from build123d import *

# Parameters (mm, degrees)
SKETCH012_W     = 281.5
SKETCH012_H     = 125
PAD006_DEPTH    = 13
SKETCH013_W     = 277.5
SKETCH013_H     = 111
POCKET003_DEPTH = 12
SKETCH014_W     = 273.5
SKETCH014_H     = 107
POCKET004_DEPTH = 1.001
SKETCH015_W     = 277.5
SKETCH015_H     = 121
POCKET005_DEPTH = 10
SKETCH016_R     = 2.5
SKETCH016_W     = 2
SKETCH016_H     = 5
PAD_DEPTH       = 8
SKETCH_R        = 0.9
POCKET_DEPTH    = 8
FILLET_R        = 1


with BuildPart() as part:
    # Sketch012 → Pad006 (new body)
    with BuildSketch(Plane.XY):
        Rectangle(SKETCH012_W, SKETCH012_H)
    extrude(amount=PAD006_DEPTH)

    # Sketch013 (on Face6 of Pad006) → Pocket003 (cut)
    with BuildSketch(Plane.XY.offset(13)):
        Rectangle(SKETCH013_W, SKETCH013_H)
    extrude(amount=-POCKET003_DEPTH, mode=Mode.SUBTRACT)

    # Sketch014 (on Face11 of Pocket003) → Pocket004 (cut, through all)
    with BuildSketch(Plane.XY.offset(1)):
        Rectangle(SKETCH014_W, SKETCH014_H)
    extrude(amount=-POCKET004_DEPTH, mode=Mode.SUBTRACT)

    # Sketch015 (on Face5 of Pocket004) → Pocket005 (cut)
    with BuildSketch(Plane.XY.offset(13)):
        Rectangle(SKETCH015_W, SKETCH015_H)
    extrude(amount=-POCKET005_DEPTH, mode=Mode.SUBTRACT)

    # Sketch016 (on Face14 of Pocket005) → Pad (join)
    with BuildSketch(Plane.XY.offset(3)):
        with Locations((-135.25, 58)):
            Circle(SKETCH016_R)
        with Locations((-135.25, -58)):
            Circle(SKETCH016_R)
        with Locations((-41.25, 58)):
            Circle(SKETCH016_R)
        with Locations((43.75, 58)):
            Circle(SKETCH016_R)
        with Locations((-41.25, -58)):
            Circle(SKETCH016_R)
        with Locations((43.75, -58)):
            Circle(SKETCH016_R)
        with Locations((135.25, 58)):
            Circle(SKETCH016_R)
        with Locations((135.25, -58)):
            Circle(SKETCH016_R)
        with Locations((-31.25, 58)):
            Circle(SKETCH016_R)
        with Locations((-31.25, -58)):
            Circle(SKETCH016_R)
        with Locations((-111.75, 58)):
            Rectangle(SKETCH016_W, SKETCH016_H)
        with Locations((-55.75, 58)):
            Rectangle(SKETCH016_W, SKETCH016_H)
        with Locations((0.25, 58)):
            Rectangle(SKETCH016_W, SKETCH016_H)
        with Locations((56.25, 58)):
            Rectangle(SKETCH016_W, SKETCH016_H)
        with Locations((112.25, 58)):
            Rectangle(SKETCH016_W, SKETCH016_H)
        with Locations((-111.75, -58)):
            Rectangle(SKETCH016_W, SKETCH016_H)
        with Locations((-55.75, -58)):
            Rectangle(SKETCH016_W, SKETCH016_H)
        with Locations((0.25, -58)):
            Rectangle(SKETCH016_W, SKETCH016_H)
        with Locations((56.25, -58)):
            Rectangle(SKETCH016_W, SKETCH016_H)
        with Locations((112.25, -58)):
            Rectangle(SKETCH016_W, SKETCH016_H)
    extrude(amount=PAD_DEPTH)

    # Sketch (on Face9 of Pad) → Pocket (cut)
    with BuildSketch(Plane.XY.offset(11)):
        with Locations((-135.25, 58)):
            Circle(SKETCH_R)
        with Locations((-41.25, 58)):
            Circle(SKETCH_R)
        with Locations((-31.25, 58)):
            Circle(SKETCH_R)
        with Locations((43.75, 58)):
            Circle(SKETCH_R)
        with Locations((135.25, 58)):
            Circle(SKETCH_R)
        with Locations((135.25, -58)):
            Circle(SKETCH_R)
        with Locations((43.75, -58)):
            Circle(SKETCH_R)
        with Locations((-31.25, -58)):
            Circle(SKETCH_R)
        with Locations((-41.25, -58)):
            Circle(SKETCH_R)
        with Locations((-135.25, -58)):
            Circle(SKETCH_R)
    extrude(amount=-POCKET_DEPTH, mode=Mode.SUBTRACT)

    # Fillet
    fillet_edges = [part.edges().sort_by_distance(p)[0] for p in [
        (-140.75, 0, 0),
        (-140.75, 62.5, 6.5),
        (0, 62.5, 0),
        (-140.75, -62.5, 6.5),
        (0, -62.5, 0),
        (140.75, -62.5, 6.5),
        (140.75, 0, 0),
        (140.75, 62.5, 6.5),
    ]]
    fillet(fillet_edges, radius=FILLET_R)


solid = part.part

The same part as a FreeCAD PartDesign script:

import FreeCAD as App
import Part
import Sketcher


def edges_at(feature, points):
    """Names of the edges that pass closest to the given points."""
    edges = feature.Shape.Edges
    near = lambda p: min(range(len(edges)), key=lambda i: edges[i].distToShape(Part.Vertex(*p))[0])
    return sorted({f"Edge{near(p) + 1}" for p in points})


def add_polygon(sketch, points):
    """Adds a closed chain of lines whose ends are joined by coincident constraints."""
    first, n = sketch.GeometryCount, len(points)
    for a, b in zip(points, points[1:] + points[:1]):
        sketch.addGeometry(Part.LineSegment(App.Vector(*a, 0), App.Vector(*b, 0)), False)
    for i in range(n):
        sketch.addConstraint(Sketcher.Constraint("Coincident", first + i, 2, first + (i + 1) % n, 1))

doc = App.newDocument("Part")
body = doc.addObject("PartDesign::Body", "Body")

# Sketch on XY plane
sketch1 = doc.addObject("Sketcher::SketchObject", "Sketch")
body.addObject(sketch1)
sketch1.AttachmentSupport = (doc.XY_Plane, [""])
sketch1.MapMode = "FlatFace"
add_polygon(sketch1, [(-140.75, 62.5), (-140.75, -62.5), (140.75, -62.5), (140.75, 62.5)])  # lines 0-3
sketch1.addConstraint([
    Sketcher.Constraint("Vertical", 0),
    Sketcher.Constraint("Horizontal", 1),
    Sketcher.Constraint("Vertical", 2),
    Sketcher.Constraint("Horizontal", 3),
    Sketcher.Constraint("Symmetric", 0, 2, 2, 2, -1, 1),
    Sketcher.Constraint("DistanceY", 0, 2, 0, 1, 125.0),
    Sketcher.Constraint("DistanceX", 1, 1, 1, 2, 281.5),
])
pad1 = doc.addObject("PartDesign::Pad", "Pad")
body.addObject(pad1)
pad1.Profile = sketch1
pad1.Length = 13

# Sketch on XY plane
sketch2 = doc.addObject("Sketcher::SketchObject", "Sketch001")
body.addObject(sketch2)
sketch2.AttachmentSupport = (doc.XY_Plane, [""])
sketch2.MapMode = "FlatFace"
sketch2.AttachmentOffset = App.Placement(App.Vector(0, 0, 13), App.Rotation())
add_polygon(sketch2, [(-138.75, 55.5), (-138.75, -55.5), (138.75, -55.5), (138.75, 55.5)])  # lines 0-3
sketch2.addConstraint([
    Sketcher.Constraint("Vertical", 0),
    Sketcher.Constraint("Horizontal", 1),
    Sketcher.Constraint("Vertical", 2),
    Sketcher.Constraint("Horizontal", 3),
    Sketcher.Constraint("Symmetric", 0, 2, 2, 2, -1, 1),
    Sketcher.Constraint("DistanceY", 0, 2, 0, 1, 111.0),
    Sketcher.Constraint("DistanceX", 1, 1, 1, 2, 277.5),
])
pocket1 = doc.addObject("PartDesign::Pocket", "Pocket")
body.addObject(pocket1)
pocket1.Profile = sketch2
pocket1.Length = 12

# Sketch on XY plane
sketch3 = doc.addObject("Sketcher::SketchObject", "Sketch002")
body.addObject(sketch3)
sketch3.AttachmentSupport = (doc.XY_Plane, [""])
sketch3.MapMode = "FlatFace"
sketch3.AttachmentOffset = App.Placement(App.Vector(0, 0, 1), App.Rotation())
add_polygon(sketch3, [(-136.75, 53.5), (-136.75, -53.5), (136.75, -53.5), (136.75, 53.5)])  # lines 0-3
sketch3.addConstraint([
    Sketcher.Constraint("Vertical", 0),
    Sketcher.Constraint("Horizontal", 1),
    Sketcher.Constraint("Vertical", 2),
    Sketcher.Constraint("Horizontal", 3),
    Sketcher.Constraint("Symmetric", 0, 2, 2, 2, -1, 1),
    Sketcher.Constraint("DistanceY", 0, 2, 0, 1, 107.0),
    Sketcher.Constraint("DistanceX", 1, 1, 1, 2, 273.5),
])
pocket2 = doc.addObject("PartDesign::Pocket", "Pocket001")
body.addObject(pocket2)
pocket2.Profile = sketch3
pocket2.Type = "ThroughAll"

# Sketch on XY plane
sketch4 = doc.addObject("Sketcher::SketchObject", "Sketch003")
body.addObject(sketch4)
sketch4.AttachmentSupport = (doc.XY_Plane, [""])
sketch4.MapMode = "FlatFace"
sketch4.AttachmentOffset = App.Placement(App.Vector(0, 0, 13), App.Rotation())
add_polygon(sketch4, [(-138.75, 60.5), (-138.75, -60.5), (138.75, -60.5), (138.75, 60.5)])  # lines 0-3
sketch4.addConstraint([
    Sketcher.Constraint("Vertical", 0),
    Sketcher.Constraint("Horizontal", 1),
    Sketcher.Constraint("Vertical", 2),
    Sketcher.Constraint("Horizontal", 3),
    Sketcher.Constraint("Symmetric", 0, 2, 2, 2, -1, 1),
    Sketcher.Constraint("DistanceY", 0, 2, 0, 1, 121.0),
    Sketcher.Constraint("DistanceX", 1, 1, 1, 2, 277.5),
])
pocket3 = doc.addObject("PartDesign::Pocket", "Pocket002")
body.addObject(pocket3)
pocket3.Profile = sketch4
pocket3.Length = 10

# Sketch on XY plane
sketch5 = doc.addObject("Sketcher::SketchObject", "Sketch004")
body.addObject(sketch5)
sketch5.AttachmentSupport = (doc.XY_Plane, [""])
sketch5.MapMode = "FlatFace"
sketch5.AttachmentOffset = App.Placement(App.Vector(0, 0, 3), App.Rotation())
sketch5.addGeometry(Part.Circle(App.Vector(-135.25, 58, 0), App.Vector(0, 0, 1), 2.5), False)  # 0
sketch5.addGeometry(Part.Circle(App.Vector(-135.25, -58, 0), App.Vector(0, 0, 1), 2.5), False)  # 1
sketch5.addGeometry(Part.Circle(App.Vector(-41.25, 58, 0), App.Vector(0, 0, 1), 2.5), False)  # 2
sketch5.addGeometry(Part.Circle(App.Vector(43.75, 58, 0), App.Vector(0, 0, 1), 2.5), False)  # 3
sketch5.addGeometry(Part.Circle(App.Vector(-41.25, -58, 0), App.Vector(0, 0, 1), 2.5), False)  # 4
sketch5.addGeometry(Part.Circle(App.Vector(43.75, -58, 0), App.Vector(0, 0, 1), 2.5), False)  # 5
sketch5.addGeometry(Part.Circle(App.Vector(135.25, 58, 0), App.Vector(0, 0, 1), 2.5), False)  # 6
sketch5.addGeometry(Part.Circle(App.Vector(135.25, -58, 0), App.Vector(0, 0, 1), 2.5), False)  # 7
sketch5.addGeometry(Part.Circle(App.Vector(-31.25, 58, 0), App.Vector(0, 0, 1), 2.5), False)  # 8
sketch5.addGeometry(Part.Circle(App.Vector(-31.25, -58, 0), App.Vector(0, 0, 1), 2.5), False)  # 9
add_polygon(sketch5, [(-112.75, 60.5), (-112.75, 55.5), (-110.75, 55.5), (-110.75, 60.5)])  # lines 10-13
add_polygon(sketch5, [(-56.75, 60.5), (-56.75, 55.5), (-54.75, 55.5), (-54.75, 60.5)])  # lines 14-17
add_polygon(sketch5, [(-0.75, 60.5), (-0.75, 55.5), (1.25, 55.5), (1.25, 60.5)])  # lines 18-21
add_polygon(sketch5, [(55.25, 60.5), (55.25, 55.5), (57.25, 55.5), (57.25, 60.5)])  # lines 22-25
add_polygon(sketch5, [(111.25, 60.5), (111.25, 55.5), (113.25, 55.5), (113.25, 60.5)])  # lines 26-29
add_polygon(sketch5, [(-112.75, -55.5), (-112.75, -60.5), (-110.75, -60.5), (-110.75, -55.5)])  # lines 30-33
add_polygon(sketch5, [(-56.75, -55.5), (-56.75, -60.5), (-54.75, -60.5), (-54.75, -55.5)])  # lines 34-37
add_polygon(sketch5, [(-0.75, -55.5), (-0.75, -60.5), (1.25, -60.5), (1.25, -55.5)])  # lines 38-41
add_polygon(sketch5, [(55.25, -55.5), (55.25, -60.5), (57.25, -60.5), (57.25, -55.5)])  # lines 42-45
add_polygon(sketch5, [(111.25, -55.5), (111.25, -60.5), (113.25, -60.5), (113.25, -55.5)])  # lines 46-49
sketch5.addConstraint([
    Sketcher.Constraint("Vertical", 10),
    Sketcher.Constraint("Horizontal", 11),
    Sketcher.Constraint("Vertical", 12),
    Sketcher.Constraint("Horizontal", 13),
    Sketcher.Constraint("Vertical", 14),
    Sketcher.Constraint("Horizontal", 15),
    Sketcher.Constraint("Vertical", 16),
    Sketcher.Constraint("Horizontal", 17),
    Sketcher.Constraint("Vertical", 18),
    Sketcher.Constraint("Horizontal", 19),
    Sketcher.Constraint("Vertical", 20),
    Sketcher.Constraint("Horizontal", 21),
    Sketcher.Constraint("Vertical", 22),
    Sketcher.Constraint("Horizontal", 23),
    Sketcher.Constraint("Vertical", 24),
    Sketcher.Constraint("Horizontal", 25),
    Sketcher.Constraint("Vertical", 26),
    Sketcher.Constraint("Horizontal", 27),
    Sketcher.Constraint("Vertical", 28),
    Sketcher.Constraint("Horizontal", 29),
    Sketcher.Constraint("Vertical", 30),
    Sketcher.Constraint("Horizontal", 31),
    Sketcher.Constraint("Vertical", 32),
    Sketcher.Constraint("Horizontal", 33),
    Sketcher.Constraint("Vertical", 34),
    Sketcher.Constraint("Horizontal", 35),
    Sketcher.Constraint("Vertical", 36),
    Sketcher.Constraint("Horizontal", 37),
    Sketcher.Constraint("Vertical", 38),
    Sketcher.Constraint("Horizontal", 39),
    Sketcher.Constraint("Vertical", 40),
    Sketcher.Constraint("Horizontal", 41),
    Sketcher.Constraint("Vertical", 42),
    Sketcher.Constraint("Horizontal", 43),
    Sketcher.Constraint("Vertical", 44),
    Sketcher.Constraint("Horizontal", 45),
    Sketcher.Constraint("Vertical", 46),
    Sketcher.Constraint("Horizontal", 47),
    Sketcher.Constraint("Vertical", 48),
    Sketcher.Constraint("Horizontal", 49),
    Sketcher.Constraint("Equal", 0, 1),
    Sketcher.Constraint("Equal", 1, 2),
    Sketcher.Constraint("Equal", 2, 3),
    Sketcher.Constraint("Equal", 3, 4),
    Sketcher.Constraint("Equal", 4, 5),
    Sketcher.Constraint("Equal", 5, 6),
    Sketcher.Constraint("Equal", 6, 7),
    Sketcher.Constraint("Equal", 7, 8),
    Sketcher.Constraint("Equal", 8, 9),
    Sketcher.Constraint("Symmetric", 1, 3, 6, 3, -1, 1),
    Sketcher.Constraint("Symmetric", 0, 3, 7, 3, -1, 1),
    Sketcher.Constraint("Symmetric", 0, 3, 6, 3, -2),
    Sketcher.Constraint("Symmetric", 2, 3, 4, 3, -1),
    Sketcher.Constraint("Symmetric", 3, 3, 5, 3, -1),
    Sketcher.Constraint("Symmetric", 8, 3, 9, 3, -1),
    Sketcher.Constraint("Symmetric", 13, 2, 30, 2, -1),
    Sketcher.Constraint("Symmetric", 11, 2, 32, 2, -1),
    Sketcher.Constraint("Symmetric", 17, 2, 34, 2, -1),
    Sketcher.Constraint("Symmetric", 15, 2, 36, 2, -1),
    Sketcher.Constraint("Symmetric", 21, 2, 38, 2, -1),
    Sketcher.Constraint("Symmetric", 19, 2, 40, 2, -1),
    Sketcher.Constraint("Symmetric", 25, 2, 42, 2, -1),
    Sketcher.Constraint("Symmetric", 23, 2, 44, 2, -1),
    Sketcher.Constraint("Symmetric", 29, 2, 46, 2, -1),
    Sketcher.Constraint("Symmetric", 27, 2, 48, 2, -1),
    Sketcher.Constraint("Horizontal", 0, 3, 2, 3),
    Sketcher.Constraint("Horizontal", 2, 3, 3, 3),
    Sketcher.Constraint("Horizontal", 6, 3, 8, 3),
    Sketcher.Constraint("Horizontal", 11, 2, 14, 2),
    Sketcher.Constraint("Horizontal", 13, 2, 16, 2),
    Sketcher.Constraint("Horizontal", 15, 2, 18, 2),
    Sketcher.Constraint("Horizontal", 17, 2, 20, 2),
    Sketcher.Constraint("Horizontal", 19, 2, 22, 2),
    Sketcher.Constraint("Horizontal", 21, 2, 24, 2),
    Sketcher.Constraint("Horizontal", 23, 2, 26, 2),
    Sketcher.Constraint("Horizontal", 25, 2, 28, 2),
    Sketcher.Constraint("Equal", 13, 15),
    Sketcher.Constraint("Equal", 17, 19),
    Sketcher.Constraint("Equal", 21, 23),
    Sketcher.Constraint("Equal", 25, 27),
    Sketcher.Constraint("Diameter", 0, 5.0),
    Sketcher.Constraint("DistanceX", 11, 1, 11, 2, 2.0),
    Sketcher.Constraint("DistanceY", 10, 2, 10, 1, 5.0),
    Sketcher.Constraint("DistanceY", -1, 1, 0, 3, 58.0),
    Sketcher.Constraint("DistanceX", 0, 3, 2, 3, 94.0),
    Sketcher.Constraint("DistanceX", 2, 3, 3, 3, 85.0),
    Sketcher.Constraint("DistanceX", 2, 3, 8, 3, 10.0),
    Sketcher.Constraint("DistanceX", 11, 2, 14, 2, 54.0),
    Sketcher.Constraint("DistanceX", 15, 2, 18, 2, 54.0),
    Sketcher.Constraint("DistanceX", 19, 2, 22, 2, 54.0),
    Sketcher.Constraint("DistanceX", 26, 2, 6, 3, 24.0),
    Sketcher.Constraint("DistanceX", 23, 2, 26, 2, 54.0),
    Sketcher.Constraint("DistanceY", 30, 2, 10, 2, 116.0),
    Sketcher.Constraint("DistanceX", 3, 3, 6, 3, 91.5),
])
pad2 = doc.addObject("PartDesign::Pad", "Pad001")
body.addObject(pad2)
pad2.Profile = sketch5
pad2.Length = 8

# Sketch on XY plane
sketch6 = doc.addObject("Sketcher::SketchObject", "Sketch005")
body.addObject(sketch6)
sketch6.AttachmentSupport = (doc.XY_Plane, [""])
sketch6.MapMode = "FlatFace"
sketch6.AttachmentOffset = App.Placement(App.Vector(0, 0, 11), App.Rotation())
sketch6.addGeometry([
    Part.Circle(App.Vector(-135.25, 58, 0), App.Vector(0, 0, 1), 0.9),  # 0
    Part.Circle(App.Vector(-41.25, 58, 0), App.Vector(0, 0, 1), 0.9),  # 1
    Part.Circle(App.Vector(-31.25, 58, 0), App.Vector(0, 0, 1), 0.9),  # 2
    Part.Circle(App.Vector(43.75, 58, 0), App.Vector(0, 0, 1), 0.9),  # 3
    Part.Circle(App.Vector(135.25, 58, 0), App.Vector(0, 0, 1), 0.9),  # 4
    Part.Circle(App.Vector(135.25, -58, 0), App.Vector(0, 0, 1), 0.9),  # 5
    Part.Circle(App.Vector(43.75, -58, 0), App.Vector(0, 0, 1), 0.9),  # 6
    Part.Circle(App.Vector(-31.25, -58, 0), App.Vector(0, 0, 1), 0.9),  # 7
    Part.Circle(App.Vector(-41.25, -58, 0), App.Vector(0, 0, 1), 0.9),  # 8
    Part.Circle(App.Vector(-135.25, -58, 0), App.Vector(0, 0, 1), 0.9),  # 9
], False)
sketch6.addConstraint([
    Sketcher.Constraint("Equal", 0, 1),
    Sketcher.Constraint("Equal", 1, 2),
    Sketcher.Constraint("Equal", 2, 3),
    Sketcher.Constraint("Equal", 3, 4),
    Sketcher.Constraint("Equal", 4, 5),
    Sketcher.Constraint("Equal", 5, 6),
    Sketcher.Constraint("Equal", 6, 7),
    Sketcher.Constraint("Equal", 7, 8),
    Sketcher.Constraint("Equal", 8, 9),
    Sketcher.Constraint("Symmetric", 0, 3, 5, 3, -1, 1),
    Sketcher.Constraint("Symmetric", 4, 3, 9, 3, -1, 1),
    Sketcher.Constraint("Symmetric", 0, 3, 4, 3, -2),
    Sketcher.Constraint("Symmetric", 3, 3, 6, 3, -1),
    Sketcher.Constraint("Symmetric", 2, 3, 7, 3, -1),
    Sketcher.Constraint("Symmetric", 1, 3, 8, 3, -1),
    Sketcher.Constraint("Horizontal", 0, 3, 1, 3),
    Sketcher.Constraint("Horizontal", 1, 3, 2, 3),
    Sketcher.Constraint("Horizontal", 2, 3, 3, 3),
    Sketcher.Constraint("Diameter", 0, 1.8),
    Sketcher.Constraint("DistanceY", -1, 1, 0, 3, 58.0),
    Sketcher.Constraint("DistanceX", 0, 3, 1, 3, 94.0),
    Sketcher.Constraint("DistanceX", 1, 3, 2, 3, 10.0),
    Sketcher.Constraint("DistanceX", 2, 3, 3, 3, 75.0),
    Sketcher.Constraint("DistanceX", 3, 3, 4, 3, 91.5),
])
pocket4 = doc.addObject("PartDesign::Pocket", "Pocket003")
body.addObject(pocket4)
pocket4.Profile = sketch6
pocket4.Length = 8
doc.recompute()

fillet = doc.addObject("PartDesign::Fillet", "Fillet")
body.addObject(fillet)
fillet.Base = (pocket4, edges_at(pocket4, [
    (-140.75, 0, 0),
    (-140.75, 62.5, 6.5),
    (0, 62.5, 0),
    (-140.75, -62.5, 6.5),
    (0, -62.5, 0),
    (140.75, -62.5, 6.5),
    (140.75, 0, 0),
    (140.75, 62.5, 6.5),
]))
fillet.Radius = 1

doc.recompute()
